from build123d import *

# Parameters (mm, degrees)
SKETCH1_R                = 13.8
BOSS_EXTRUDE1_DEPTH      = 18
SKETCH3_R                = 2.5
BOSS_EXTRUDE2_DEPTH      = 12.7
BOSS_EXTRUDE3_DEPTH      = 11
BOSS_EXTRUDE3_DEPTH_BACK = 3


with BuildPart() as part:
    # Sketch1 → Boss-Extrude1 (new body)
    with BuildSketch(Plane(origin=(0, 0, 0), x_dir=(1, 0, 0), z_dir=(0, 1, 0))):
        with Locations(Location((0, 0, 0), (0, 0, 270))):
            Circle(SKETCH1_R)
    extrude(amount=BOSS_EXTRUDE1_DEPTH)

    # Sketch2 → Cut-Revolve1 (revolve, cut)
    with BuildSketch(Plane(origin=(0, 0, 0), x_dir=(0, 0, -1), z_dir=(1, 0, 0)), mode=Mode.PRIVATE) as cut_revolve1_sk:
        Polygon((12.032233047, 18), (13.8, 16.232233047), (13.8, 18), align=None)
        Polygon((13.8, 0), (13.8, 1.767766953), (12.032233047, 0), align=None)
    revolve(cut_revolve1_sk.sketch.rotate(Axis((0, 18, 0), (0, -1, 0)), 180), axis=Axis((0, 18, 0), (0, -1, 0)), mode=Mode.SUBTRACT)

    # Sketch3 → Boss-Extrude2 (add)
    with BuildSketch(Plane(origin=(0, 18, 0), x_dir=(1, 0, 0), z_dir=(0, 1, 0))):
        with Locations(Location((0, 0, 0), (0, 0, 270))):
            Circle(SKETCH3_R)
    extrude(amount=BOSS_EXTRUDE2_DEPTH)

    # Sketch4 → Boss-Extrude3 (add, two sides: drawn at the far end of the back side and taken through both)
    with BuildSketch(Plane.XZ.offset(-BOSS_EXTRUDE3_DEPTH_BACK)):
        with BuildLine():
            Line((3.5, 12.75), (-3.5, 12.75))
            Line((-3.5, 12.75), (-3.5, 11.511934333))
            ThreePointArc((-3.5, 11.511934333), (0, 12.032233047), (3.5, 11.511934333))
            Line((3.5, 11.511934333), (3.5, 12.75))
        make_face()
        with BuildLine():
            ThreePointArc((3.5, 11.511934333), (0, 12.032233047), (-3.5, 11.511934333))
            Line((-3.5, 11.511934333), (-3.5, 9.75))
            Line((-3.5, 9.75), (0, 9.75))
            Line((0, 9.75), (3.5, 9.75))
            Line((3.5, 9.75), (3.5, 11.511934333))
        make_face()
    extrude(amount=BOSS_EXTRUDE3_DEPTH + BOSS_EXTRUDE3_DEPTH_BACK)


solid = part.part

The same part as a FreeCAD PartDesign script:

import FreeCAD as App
import Part
import Sketcher

V = App.Vector
Q = App.Units.Quantity


def add_polygon(sketch, points):
    """Adds a closed chain of lines whose ends are joined by coincident constraints."""
    first, n = sketch.GeometryCount, len(points)
    for a, b in zip(points, points[1:] + points[:1]):
        sketch.addGeometry(Part.LineSegment(App.Vector(*a, 0), App.Vector(*b, 0)), False)
    for i in range(n):
        sketch.addConstraint(Sketcher.Constraint("Coincident", first + i, 2, first + (i + 1) % n, 1))

doc = App.newDocument("Part")
params = doc.addObject("Spreadsheet::Sheet", "Params")
for row, (alias, value) in enumerate([
    ("sketch1_diameter", "27.6 mm"),
    ("pad1_length", "18 mm"),
    ("sketch2_length", "2.5 mm"),
    ("groove_angle", "360 deg"),
    ("sketch3_diameter", "5 mm"),
    ("pad2_length", "12.7 mm"),
    ("sketch4_width", "7 mm"),
    ("sketch4_height", "3 mm"),
    ("pad3_length", "11 mm"),
    ("pad3_length2", "3 mm"),
], start=1):
    params.set(f"A{row}", alias)
    params.set(f"B{row}", "=" + value)
    params.setAlias(f"B{row}", alias)

body = doc.addObject("PartDesign::Body", "Body")

# Sketch on XZ plane
sketch1 = body.newObject("Sketcher::SketchObject", "Sketch")
sketch1.AttachmentSupport = (doc.getObject("XZ_Plane"), [""])
sketch1.MapMode = "FlatFace"
sketch1.addGeometry(Part.Circle(V(0, 0, 0), V(0, 0, 1), 13.8), False)
sketch1.addConstraint([
    Sketcher.Constraint("Coincident", 0, 3, -1, 1),
    Sketcher.Constraint("Diameter", 0, Q("27.6 mm")),
])
sketch1.setExpression("Constraints[1]", "Params.sketch1_diameter")
pad1 = body.newObject("PartDesign::Pad", "Pad")
pad1.Profile = sketch1
pad1.setExpression("Length", "Params.pad1_length")
pad1.Reversed = True

# Sketch on YZ plane
sketch2 = body.newObject("Sketcher::SketchObject", "Sketch001")
sketch2.AttachmentSupport = (doc.getObject("YZ_Plane"), [""])
sketch2.MapMode = "FlatFace"
add_polygon(sketch2, [(18, -12.032233), (16.232233, -13.8), (18, -13.8)])  # lines 0-2
add_polygon(sketch2, [(0, -13.8), (1.767767, -13.8), (0, -12.032233)])  # lines 3-5
sketch2.addConstraint([
    Sketcher.Constraint("Horizontal", 1),
    Sketcher.Constraint("Vertical", 2),
    Sketcher.Constraint("Horizontal", 3),
    Sketcher.Constraint("Vertical", 5),
    Sketcher.Constraint("PointOnObject", 4, 2, -2),
    Sketcher.Constraint("Perpendicular", 0, 4),
    Sketcher.Constraint("Horizontal", 1, 2, 3, 2),
    Sketcher.Constraint("Horizontal", 2, 2, 4, 2),
    Sketcher.Constraint("Equal", 1, 3),
    Sketcher.Constraint("DistanceX", -1, 1, 1, 2, Q("18 mm")),
    Sketcher.Constraint("Distance", 0, Q("2.5 mm")),
    Sketcher.Constraint("DistanceY", 0, 2, -1, 1, Q("13.8 mm")),
])
sketch2.setExpression("Constraints[16]", "Params.sketch2_length")
groove = body.newObject("PartDesign::Groove", "Groove")
groove.Profile = sketch2
groove.ReferenceAxis = (sketch2, ["H_Axis"])
groove.setExpression("Angle", "Params.groove_angle")

# Sketch on XZ plane
sketch3 = body.newObject("Sketcher::SketchObject", "Sketch002")
sketch3.AttachmentSupport = (doc.getObject("XZ_Plane"), [""])
sketch3.MapMode = "FlatFace"
sketch3.AttachmentOffset = App.Placement(V(0, 0, -18), App.Rotation())
sketch3.addGeometry(Part.Circle(V(0, 0, 0), V(0, 0, 1), 2.5), False)
sketch3.addConstraint([
    Sketcher.Constraint("Coincident", 0, 3, -1, 1),
    Sketcher.Constraint("Diameter", 0, Q("5 mm")),
])
sketch3.setExpression("Constraints[1]", "Params.sketch3_diameter")
pad2 = body.newObject("PartDesign::Pad", "Pad001")
pad2.Profile = sketch3
pad2.setExpression("Length", "Params.pad2_length")
pad2.Reversed = True

# Sketch on XZ plane
sketch4 = body.newObject("Sketcher::SketchObject", "Sketch003")
sketch4.AttachmentSupport = (doc.getObject("XZ_Plane"), [""])
sketch4.MapMode = "FlatFace"
add_polygon(sketch4, [(3.5, 12.75), (-3.5, 12.75), (-3.5, 9.75), (3.5, 9.75)])  # lines 0-3
sketch4.addConstraint([
    Sketcher.Constraint("Horizontal", 0),
    Sketcher.Constraint("Vertical", 1),
    Sketcher.Constraint("Horizontal", 2),
    Sketcher.Constraint("Vertical", 3),
    Sketcher.Constraint("DistanceX", 0, 2, 0, 1, Q("7 mm")),
    Sketcher.Constraint("DistanceY", 1, 2, 1, 1, Q("3 mm")),
    Sketcher.Constraint("DistanceX", 0, 2, -1, 1, Q("3.5 mm")),
    Sketcher.Constraint("DistanceY", -1, 1, 0, 2, Q("12.75 mm")),
])
sketch4.setExpression("Constraints[8]", "Params.sketch4_width")
sketch4.setExpression("Constraints[9]", "Params.sketch4_height")
pad3 = body.newObject("PartDesign::Pad", "Pad002")
pad3.Profile = sketch4
pad3.Type = "TwoLengths"
pad3.setExpression("Length", "Params.pad3_length")
pad3.setExpression("Length2", "Params.pad3_length2")

doc.recompute()
